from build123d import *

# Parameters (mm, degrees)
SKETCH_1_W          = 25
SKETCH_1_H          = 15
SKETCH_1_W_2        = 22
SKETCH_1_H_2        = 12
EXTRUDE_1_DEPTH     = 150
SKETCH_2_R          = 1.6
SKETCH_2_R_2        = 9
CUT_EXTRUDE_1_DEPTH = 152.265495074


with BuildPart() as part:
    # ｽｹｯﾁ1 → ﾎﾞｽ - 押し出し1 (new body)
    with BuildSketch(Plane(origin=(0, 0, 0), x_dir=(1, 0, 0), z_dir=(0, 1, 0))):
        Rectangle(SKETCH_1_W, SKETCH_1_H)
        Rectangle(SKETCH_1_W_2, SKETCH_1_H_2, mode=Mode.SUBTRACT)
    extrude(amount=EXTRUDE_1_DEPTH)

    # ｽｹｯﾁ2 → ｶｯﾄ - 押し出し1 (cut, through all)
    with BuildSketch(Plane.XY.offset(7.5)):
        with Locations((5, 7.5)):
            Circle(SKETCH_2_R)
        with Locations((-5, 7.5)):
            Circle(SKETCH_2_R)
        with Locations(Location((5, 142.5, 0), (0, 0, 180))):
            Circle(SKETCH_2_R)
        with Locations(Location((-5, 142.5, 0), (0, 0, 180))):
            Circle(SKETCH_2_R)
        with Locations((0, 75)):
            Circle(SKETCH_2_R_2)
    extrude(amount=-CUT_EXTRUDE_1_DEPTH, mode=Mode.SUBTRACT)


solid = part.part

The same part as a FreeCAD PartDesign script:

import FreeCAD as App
import Part
import Sketcher

doc = App.newDocument("Part")
body = doc.addObject("PartDesign::Body", "Body")

# Sketch on XZ plane
sketch1 = body.newObject("Sketcher::SketchObject", "Sketch")
sketch1.AttachmentSupport = (doc.getObject("XZ_Plane"), [""])
sketch1.MapMode = "FlatFace"
sketch1.addGeometry(Part.LineSegment(App.Vector(-12, -8, 0), App.Vector(-12, 8, 0)), False)
sketch1.addGeometry(Part.LineSegment(App.Vector(-12, 8, 0), App.Vector(12, 8, 0)), False)
sketch1.addGeometry(Part.LineSegment(App.Vector(12, 8, 0), App.Vector(12, -8, 0)), False)
sketch1.addGeometry(Part.LineSegment(App.Vector(12, -8, 0), App.Vector(-12, -8, 0)), False)
sketch1.addGeometry(Part.LineSegment(App.Vector(11, 6, 0), App.Vector(-11, 6, 0)), False)
sketch1.addGeometry(Part.LineSegment(App.Vector(-11, 6, 0), App.Vector(-11, -6, 0)), False)
sketch1.addGeometry(Part.LineSegment(App.Vector(-11, -6, 0), App.Vector(11, -6, 0)), False)
sketch1.addGeometry(Part.LineSegment(App.Vector(11, -6, 0), App.Vector(11, 6, 0)), False)
sketch1.addConstraint(Sketcher.Constraint("Coincident", 0, 2, 1, 1))
sketch1.addConstraint(Sketcher.Constraint("Coincident", 1, 2, 2, 1))
sketch1.addConstraint(Sketcher.Constraint("Coincident", 2, 2, 3, 1))
sketch1.addConstraint(Sketcher.Constraint("Coincident", 3, 2, 0, 1))
sketch1.addConstraint(Sketcher.Constraint("Coincident", 4, 2, 5, 1))
sketch1.addConstraint(Sketcher.Constraint("Coincident", 5, 2, 6, 1))
sketch1.addConstraint(Sketcher.Constraint("Coincident", 6, 2, 7, 1))
sketch1.addConstraint(Sketcher.Constraint("Coincident", 7, 2, 4, 1))
sketch1.addConstraint(Sketcher.Constraint("Vertical", 0))
sketch1.addConstraint(Sketcher.Constraint("Horizontal", 1))
sketch1.addConstraint(Sketcher.Constraint("Vertical", 2))
sketch1.addConstraint(Sketcher.Constraint("Horizontal", 3))
sketch1.addConstraint(Sketcher.Constraint("Horizontal", 4))
sketch1.addConstraint(Sketcher.Constraint("Vertical", 5))
sketch1.addConstraint(Sketcher.Constraint("Horizontal", 6))
sketch1.addConstraint(Sketcher.Constraint("Vertical", 7))
sketch1.addConstraint(Sketcher.Constraint("Symmetric", 0, 2, 2, 2, -1, 1))
sketch1.addConstraint(Sketcher.Constraint("Symmetric", 4, 2, 6, 2, -1, 1))
sketch1.addConstraint(Sketcher.Constraint("DistanceX", 1, 1, 1, 2, 25.0))
sketch1.addConstraint(Sketcher.Constraint("DistanceX", 4, 2, 4, 1, 22.0))
sketch1.addConstraint(Sketcher.Constraint("DistanceY", 0, 1, 0, 2, 15.0))
sketch1.addConstraint(Sketcher.Constraint("DistanceY", 5, 2, 5, 1, 12.0))
pad1 = body.newObject("PartDesign::Pad", "Pad")
pad1.Profile = sketch1
pad1.Length = 150
pad1.Reversed = True

# Sketch on XY plane
sketch2 = body.newObject("Sketcher::SketchObject", "Sketch001")
sketch2.AttachmentSupport = (doc.getObject("XY_Plane"), [""])
sketch2.MapMode = "FlatFace"
sketch2.AttachmentOffset = App.Placement(App.Vector(0, 0, 7.5), App.Rotation())
sketch2.addGeometry(Part.Circle(App.Vector(5, 7.5, 0), App.Vector(0, 0, 1), 1.6), False)
sketch2.addGeometry(Part.Circle(App.Vector(-5, 7.5, 0), App.Vector(0, 0, 1), 1.6), False)
sketch2.addGeometry(Part.Circle(App.Vector(5, 142.5, 0), App.Vector(0, 0, 1), 1.6), False)
sketch2.addGeometry(Part.Circle(App.Vector(-5, 142.5, 0), App.Vector(0, 0, 1), 1.6), False)
sketch2.addGeometry(Part.Circle(App.Vector(0, 75, 0), App.Vector(0, 0, 1), 9), False)
sketch2.addConstraint(Sketcher.Constraint("Equal", 0, 1))
sketch2.addConstraint(Sketcher.Constraint("Equal", 1, 2))
sketch2.addConstraint(Sketcher.Constraint("Equal", 2, 3))
sketch2.addConstraint(Sketcher.Constraint("Symmetric", 0, 3, 1, 3, -2))
sketch2.addConstraint(Sketcher.Constraint("Symmetric", 2, 3, 3, 3, -2))
sketch2.addConstraint(Sketcher.Constraint("PointOnObject", 4, 3, -2))
sketch2.addConstraint(Sketcher.Constraint("Vertical", 0, 3, 2, 3))
sketch2.addConstraint(Sketcher.Constraint("Diameter", 4, 18.0))
sketch2.addConstraint(Sketcher.Constraint("Diameter", 0, 3.2))
sketch2.addConstraint(Sketcher.Constraint("DistanceX", -1, 1, 0, 3, 5.0))
sketch2.addConstraint(Sketcher.Constraint("DistanceY", -1, 1, 4, 3, 75.0))
sketch2.addConstraint(Sketcher.Constraint("DistanceY", 0, 3, 2, 3, 135.0))
sketch2.addConstraint(Sketcher.Constraint("DistanceY", -1, 1, 0, 3, 7.5))
pocket1 = body.newObject("PartDesign::Pocket", "Pocket")
pocket1.Profile = sketch2
pocket1.Type = "ThroughAll"

doc.recompute()
